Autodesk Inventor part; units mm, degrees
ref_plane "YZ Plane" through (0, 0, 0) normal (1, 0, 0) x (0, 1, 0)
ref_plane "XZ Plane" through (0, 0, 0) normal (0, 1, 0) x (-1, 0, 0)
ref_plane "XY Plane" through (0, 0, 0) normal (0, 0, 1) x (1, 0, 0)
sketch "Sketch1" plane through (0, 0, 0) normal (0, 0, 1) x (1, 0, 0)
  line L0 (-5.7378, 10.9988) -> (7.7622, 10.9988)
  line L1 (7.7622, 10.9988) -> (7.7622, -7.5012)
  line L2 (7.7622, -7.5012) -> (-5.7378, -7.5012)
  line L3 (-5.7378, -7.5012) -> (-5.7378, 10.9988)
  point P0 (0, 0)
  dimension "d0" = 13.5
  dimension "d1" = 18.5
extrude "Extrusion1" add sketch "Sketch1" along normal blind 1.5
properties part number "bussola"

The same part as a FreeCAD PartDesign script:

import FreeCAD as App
import Part
import Sketcher

V = App.Vector
Q = App.Units.Quantity

doc = App.newDocument("Part")
body = doc.addObject("PartDesign::Body", "Body")

sketch1 = body.newObject("Sketcher::SketchObject", "Sketch")
sketch1.AttachmentSupport = (doc.getObject("XY_Plane"), [""])
sketch1.MapMode = "FlatFace"
sketch1.addGeometry([
    Part.LineSegment(V(7.7622, 10.9988, 0), V(-5.7378, 10.9988, 0)),
    Part.LineSegment(V(-5.7378, 10.9988, 0), V(-5.7378, -7.5012, 0)),
    Part.LineSegment(V(-5.7378, -7.5012, 0), V(7.7622, -7.5012, 0)),
    Part.LineSegment(V(7.7622, -7.5012, 0), V(7.7622, 10.9988, 0)),
], False)
sketch1.addConstraint([
    Sketcher.Constraint("Coincident", 0, 2, 1, 1),
    Sketcher.Constraint("Coincident", 1, 2, 2, 1),
    Sketcher.Constraint("Coincident", 2, 2, 3, 1),
    Sketcher.Constraint("Coincident", 3, 2, 0, 1),
    Sketcher.Constraint("Horizontal", 0),
    Sketcher.Constraint("Vertical", 1),
    Sketcher.Constraint("Horizontal", 2),
    Sketcher.Constraint("Vertical", 3),
    Sketcher.Constraint("DistanceX", 0, 2, 0, 1, Q("13.5 mm")),
    Sketcher.Constraint("DistanceY", 1, 2, 1, 1, Q("18.5 mm")),
    Sketcher.Constraint("DistanceX", 0, 2, -1, 1, Q("5.7378 mm")),
    Sketcher.Constraint("DistanceY", -1, 1, 0, 2, Q("10.9988 mm")),
])
pad1 = body.newObject("PartDesign::Pad", "Pad")
pad1.Profile = sketch1
pad1.Length = 1.5

doc.recompute()
